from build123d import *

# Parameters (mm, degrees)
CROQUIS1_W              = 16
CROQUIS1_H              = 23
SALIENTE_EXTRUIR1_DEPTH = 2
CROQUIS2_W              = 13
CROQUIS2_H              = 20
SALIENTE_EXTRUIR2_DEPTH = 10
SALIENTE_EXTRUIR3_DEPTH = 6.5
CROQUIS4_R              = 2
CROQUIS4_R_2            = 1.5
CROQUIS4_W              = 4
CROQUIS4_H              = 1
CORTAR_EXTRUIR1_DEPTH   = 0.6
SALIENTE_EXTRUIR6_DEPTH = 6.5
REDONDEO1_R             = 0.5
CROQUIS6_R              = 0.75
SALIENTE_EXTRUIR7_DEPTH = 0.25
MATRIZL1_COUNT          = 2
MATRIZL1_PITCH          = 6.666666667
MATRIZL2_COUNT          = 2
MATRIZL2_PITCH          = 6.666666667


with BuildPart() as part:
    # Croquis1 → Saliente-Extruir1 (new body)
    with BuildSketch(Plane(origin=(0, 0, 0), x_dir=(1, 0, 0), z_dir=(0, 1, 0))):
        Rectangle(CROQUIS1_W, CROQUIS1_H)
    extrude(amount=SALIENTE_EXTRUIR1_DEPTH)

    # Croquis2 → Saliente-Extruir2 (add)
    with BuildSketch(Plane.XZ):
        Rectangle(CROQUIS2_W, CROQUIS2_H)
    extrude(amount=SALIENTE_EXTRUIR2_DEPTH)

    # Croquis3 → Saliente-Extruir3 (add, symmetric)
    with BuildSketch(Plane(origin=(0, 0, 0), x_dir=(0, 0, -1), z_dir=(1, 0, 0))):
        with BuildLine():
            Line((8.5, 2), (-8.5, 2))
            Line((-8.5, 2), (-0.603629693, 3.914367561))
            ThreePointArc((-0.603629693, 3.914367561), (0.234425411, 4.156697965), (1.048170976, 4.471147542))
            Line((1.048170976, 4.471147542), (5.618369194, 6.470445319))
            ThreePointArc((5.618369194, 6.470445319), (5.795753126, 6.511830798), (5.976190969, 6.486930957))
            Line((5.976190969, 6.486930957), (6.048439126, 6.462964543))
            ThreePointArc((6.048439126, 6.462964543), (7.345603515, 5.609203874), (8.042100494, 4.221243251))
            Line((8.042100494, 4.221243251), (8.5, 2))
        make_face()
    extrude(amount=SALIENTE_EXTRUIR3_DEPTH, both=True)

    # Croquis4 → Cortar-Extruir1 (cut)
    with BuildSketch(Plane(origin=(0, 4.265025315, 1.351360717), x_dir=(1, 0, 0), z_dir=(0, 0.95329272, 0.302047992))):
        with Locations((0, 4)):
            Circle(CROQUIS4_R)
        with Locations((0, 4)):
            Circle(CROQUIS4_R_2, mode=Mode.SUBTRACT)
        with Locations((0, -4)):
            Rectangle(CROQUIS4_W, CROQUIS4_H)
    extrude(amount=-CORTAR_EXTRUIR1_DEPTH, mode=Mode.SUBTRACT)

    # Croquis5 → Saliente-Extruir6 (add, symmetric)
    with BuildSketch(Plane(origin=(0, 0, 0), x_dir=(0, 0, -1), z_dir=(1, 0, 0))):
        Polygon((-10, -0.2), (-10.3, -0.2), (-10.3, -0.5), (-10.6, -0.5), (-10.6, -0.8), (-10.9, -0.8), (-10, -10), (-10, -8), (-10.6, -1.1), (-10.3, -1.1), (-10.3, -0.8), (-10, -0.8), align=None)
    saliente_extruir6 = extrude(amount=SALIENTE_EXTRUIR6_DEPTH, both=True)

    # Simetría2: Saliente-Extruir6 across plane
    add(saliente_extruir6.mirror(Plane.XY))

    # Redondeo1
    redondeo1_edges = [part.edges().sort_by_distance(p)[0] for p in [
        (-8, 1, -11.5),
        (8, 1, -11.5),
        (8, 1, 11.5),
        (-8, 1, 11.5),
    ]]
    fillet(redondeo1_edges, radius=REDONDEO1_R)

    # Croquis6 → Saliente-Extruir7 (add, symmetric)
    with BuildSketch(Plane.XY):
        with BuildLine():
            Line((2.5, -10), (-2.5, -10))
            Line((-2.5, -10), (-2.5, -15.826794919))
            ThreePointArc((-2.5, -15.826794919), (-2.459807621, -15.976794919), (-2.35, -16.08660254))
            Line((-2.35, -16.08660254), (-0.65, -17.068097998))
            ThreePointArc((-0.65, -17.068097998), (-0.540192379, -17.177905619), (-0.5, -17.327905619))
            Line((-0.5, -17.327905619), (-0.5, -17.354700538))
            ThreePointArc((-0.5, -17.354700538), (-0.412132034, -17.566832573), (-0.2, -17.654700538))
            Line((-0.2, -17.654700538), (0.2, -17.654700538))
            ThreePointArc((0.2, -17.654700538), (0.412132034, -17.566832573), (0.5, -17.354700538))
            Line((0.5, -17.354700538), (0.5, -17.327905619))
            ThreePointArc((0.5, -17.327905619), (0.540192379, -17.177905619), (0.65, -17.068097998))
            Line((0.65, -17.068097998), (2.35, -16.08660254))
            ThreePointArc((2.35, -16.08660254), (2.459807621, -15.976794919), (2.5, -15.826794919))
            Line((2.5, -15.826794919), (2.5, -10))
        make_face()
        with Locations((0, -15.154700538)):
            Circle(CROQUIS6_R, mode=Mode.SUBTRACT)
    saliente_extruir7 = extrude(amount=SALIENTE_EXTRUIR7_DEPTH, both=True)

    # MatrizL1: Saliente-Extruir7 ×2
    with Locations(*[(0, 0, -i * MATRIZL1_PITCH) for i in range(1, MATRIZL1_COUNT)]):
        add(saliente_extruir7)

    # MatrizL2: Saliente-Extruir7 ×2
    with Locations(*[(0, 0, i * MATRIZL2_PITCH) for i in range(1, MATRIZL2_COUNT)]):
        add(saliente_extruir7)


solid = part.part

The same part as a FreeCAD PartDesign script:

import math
import FreeCAD as App
import Part
import Sketcher
Q = App.Units.Quantity


def edges_at(feature, points):
    """Names of the edges that pass closest to the given points."""
    edges = feature.Shape.Edges
    near = lambda p: min(range(len(edges)), key=lambda i: edges[i].distToShape(Part.Vertex(*p))[0])
    return sorted({f"Edge{near(p) + 1}" for p in points})

doc = App.newDocument("Part")
body = doc.addObject("PartDesign::Body", "Body")

# Sketch on XZ plane
sketch1 = doc.addObject("Sketcher::SketchObject", "Sketch")
body.addObject(sketch1)
sketch1.AttachmentSupport = (doc.XZ_Plane, [""])
sketch1.MapMode = "FlatFace"
sketch1.addGeometry([
    Part.LineSegment(App.Vector(-8, -11.5, 0), App.Vector(-8, 11.5, 0)),
    Part.LineSegment(App.Vector(-8, 11.5, 0), App.Vector(8, 11.5, 0)),
    Part.LineSegment(App.Vector(8, 11.5, 0), App.Vector(8, -11.5, 0)),
    Part.LineSegment(App.Vector(8, -11.5, 0), App.Vector(-8, -11.5, 0)),
], False)
sketch1.addConstraint([
    Sketcher.Constraint("Coincident", 0, 2, 1, 1),
    Sketcher.Constraint("Coincident", 1, 2, 2, 1),
    Sketcher.Constraint("Coincident", 2, 2, 3, 1),
    Sketcher.Constraint("Coincident", 3, 2, 0, 1),
    Sketcher.Constraint("Vertical", 0),
    Sketcher.Constraint("Horizontal", 1),
    Sketcher.Constraint("Vertical", 2),
    Sketcher.Constraint("Horizontal", 3),
    Sketcher.Constraint("Symmetric", 0, 2, 2, 2, -1, 1),
    Sketcher.Constraint("DistanceX", 1, 1, 1, 2, 16.0),
    Sketcher.Constraint("DistanceY", 0, 1, 0, 2, 23.0),
])
pad1 = doc.addObject("PartDesign::Pad", "Pad")
body.addObject(pad1)
pad1.Profile = sketch1
pad1.Length = 2
pad1.Reversed = True

# Sketch on XZ plane
sketch2 = doc.addObject("Sketcher::SketchObject", "Sketch001")
body.addObject(sketch2)
sketch2.AttachmentSupport = (doc.XZ_Plane, [""])
sketch2.MapMode = "FlatFace"
sketch2.addGeometry([
    Part.LineSegment(App.Vector(-6.5, 10, 0), App.Vector(-6.5, -10, 0)),
    Part.LineSegment(App.Vector(-6.5, -10, 0), App.Vector(6.5, -10, 0)),
    Part.LineSegment(App.Vector(6.5, -10, 0), App.Vector(6.5, 10, 0)),
    Part.LineSegment(App.Vector(6.5, 10, 0), App.Vector(-6.5, 10, 0)),
], False)
sketch2.addConstraint([
    Sketcher.Constraint("Coincident", 0, 2, 1, 1),
    Sketcher.Constraint("Coincident", 1, 2, 2, 1),
    Sketcher.Constraint("Coincident", 2, 2, 3, 1),
    Sketcher.Constraint("Coincident", 3, 2, 0, 1),
    Sketcher.Constraint("Vertical", 0),
    Sketcher.Constraint("Horizontal", 1),
    Sketcher.Constraint("Vertical", 2),
    Sketcher.Constraint("Horizontal", 3),
    Sketcher.Constraint("Symmetric", 0, 2, 2, 2, -1, 1),
    Sketcher.Constraint("DistanceX", 1, 1, 1, 2, 13.0),
    Sketcher.Constraint("DistanceY", 0, 2, 0, 1, 20.0),
])
pad2 = doc.addObject("PartDesign::Pad", "Pad001")
body.addObject(pad2)
pad2.Profile = sketch2
pad2.Length = 10

# Sketch on YZ plane
sketch3 = doc.addObject("Sketcher::SketchObject", "Sketch002")
body.addObject(sketch3)
sketch3.AttachmentSupport = (doc.YZ_Plane, [""])
sketch3.MapMode = "FlatFace"
sketch3.addGeometry([
    Part.LineSegment(App.Vector(2, 8.5, 0), App.Vector(2, -8.5, 0)),  # 0
    Part.LineSegment(App.Vector(2, -8.5, 0), App.Vector(4.221243, -8.0421, 0)),  # 1
    Part.ArcOfCircle(Part.Circle(App.Vector(3.615543, -5.103882, 0), App.Vector(0, 0, 1), 3), math.radians(-78.351898), math.radians(-18.351898)),  # 2
    Part.LineSegment(App.Vector(6.462965, -6.048439, 0), App.Vector(6.486931, -5.976191, 0)),  # 3
    Part.ArcOfCircle(Part.Circle(App.Vector(6.012361, -5.818765, 0), App.Vector(0, 0, 1), 0.5), math.radians(-18.351897), math.radians(23.627652)),  # 4
    Part.LineSegment(App.Vector(6.470445, -5.618369, 0), App.Vector(4.471148, -1.048171, 0)),  # 5
    Part.ArcOfCircle(Part.Circle(App.Vector(13.632842, 2.959742, 0), App.Vector(0, 0, 1), 10), math.radians(-166.372347), math.radians(-156.372348)),  # 6
    Part.LineSegment(App.Vector(3.914368, 0.60363, 0), App.Vector(2, 8.5, 0)),  # 7
], False)
sketch3.addConstraint([
    Sketcher.Constraint("Coincident", 0, 2, 1, 1),
    Sketcher.Constraint("Coincident", 1, 2, 2, 1),
    Sketcher.Constraint("Coincident", 2, 2, 3, 1),
    Sketcher.Constraint("Coincident", 3, 2, 4, 1),
    Sketcher.Constraint("Coincident", 4, 2, 5, 1),
    Sketcher.Constraint("Coincident", 5, 2, 6, 2),
    Sketcher.Constraint("Coincident", 6, 1, 7, 1),
    Sketcher.Constraint("Coincident", 7, 2, 0, 1),
    Sketcher.Constraint("Vertical", 0),
    Sketcher.Constraint("Radius", 2, 3.0),
    Sketcher.Constraint("Radius", 6, 10.0),
    Sketcher.Constraint("Radius", 4, 0.5),
    Sketcher.Constraint("DistanceY", 0, 2, 0, 1, 17.0),
    Sketcher.Constraint("DistanceX", -1, 1, 0, 2, 2.0),
    Sketcher.Constraint("DistanceY", 0, 2, -1, 1, 8.5),
    Sketcher.Constraint("DistanceY", 4, 2, 6, 1, 6.221999),
    Sketcher.Constraint("DistanceY", 1, 2, -1, 1, 8.0421),
    Sketcher.Constraint("DistanceX", 2, 3, 6, 3, 10.017299),
    Sketcher.Constraint("DistanceX", 2, 3, 1, 2, 0.605701),
    Sketcher.Constraint("DistanceY", 4, 2, 5, 2, 4.570198),
    Sketcher.Constraint("Distance", 1, 2.267949),
    Sketcher.Constraint("Distance", 3, 0.07612),
    Sketcher.Constraint("DistanceX", -1, 1, 4, 3, 6.012361),
    Sketcher.Constraint("DistanceY", -1, 1, 6, 3, 2.959742),
    Sketcher.Constraint("DistanceY", 2, 2, -1, 1, 6.048439),
    Sketcher.Constraint("DistanceX", -1, 1, 3, 2, 6.486931),
    Sketcher.Constraint("DistanceY", 4, 2, -1, 1, 5.618369),
])
pad3 = doc.addObject("PartDesign::Pad", "Pad002")
body.addObject(pad3)
pad3.Profile = sketch3
pad3.Length = 13
pad3.Midplane = True

# Sketch on an angled plane
sketch4 = doc.addObject("Sketcher::SketchObject", "Sketch003")
body.addObject(sketch4)
sketch4.Placement = App.Placement(App.Vector(0, 4.265025, 1.351361), App.Rotation(App.Vector(1, 0, 0), App.Vector(0, 0.302047992, -0.95329272), App.Vector(0, 0.95329272, 0.302047992), "ZXY"))
sketch4.addGeometry([
    Part.Circle(App.Vector(0, 4, 0), App.Vector(0, 0, 1), 2),  # 0
    Part.Circle(App.Vector(0, 4, 0), App.Vector(0, 0, 1), 1.5),  # 1
    Part.LineSegment(App.Vector(-2, -3.5, 0), App.Vector(-2, -4.5, 0)),  # 2
    Part.LineSegment(App.Vector(-2, -4.5, 0), App.Vector(2, -4.5, 0)),  # 3
    Part.LineSegment(App.Vector(2, -4.5, 0), App.Vector(2, -3.5, 0)),  # 4
    Part.LineSegment(App.Vector(2, -3.5, 0), App.Vector(-2, -3.5, 0)),  # 5
], False)
sketch4.addConstraint([
    Sketcher.Constraint("Coincident", 2, 2, 3, 1),
    Sketcher.Constraint("Coincident", 3, 2, 4, 1),
    Sketcher.Constraint("Coincident", 4, 2, 5, 1),
    Sketcher.Constraint("Coincident", 5, 2, 2, 1),
    Sketcher.Constraint("Vertical", 2),
    Sketcher.Constraint("Horizontal", 3),
    Sketcher.Constraint("Vertical", 4),
    Sketcher.Constraint("Horizontal", 5),
    Sketcher.Constraint("Coincident", 1, 3, 0, 3),
    Sketcher.Constraint("PointOnObject", 0, 3, -2),
    Sketcher.Constraint("Diameter", 0, 4.0),
    Sketcher.Constraint("Diameter", 1, 3.0),
    Sketcher.Constraint("DistanceX", 3, 1, 3, 2, 4.0),
    Sketcher.Constraint("DistanceY", 2, 2, 2, 1, 1.0),
    Sketcher.Constraint("DistanceY", -1, 1, 0, 3, 4.0),
    Sketcher.Constraint("DistanceX", 2, 2, -1, 1, 2.0),
    Sketcher.Constraint("DistanceY", 2, 2, -1, 1, 4.5),
])
pocket1 = doc.addObject("PartDesign::Pocket", "Pocket")
body.addObject(pocket1)
pocket1.Profile = sketch4
pocket1.Length = 0.6

# Sketch on YZ plane
sketch5 = doc.addObject("Sketcher::SketchObject", "Sketch004")
body.addObject(sketch5)
sketch5.AttachmentSupport = (doc.YZ_Plane, [""])
sketch5.MapMode = "FlatFace"
sketch5.addGeometry([
    Part.LineSegment(App.Vector(-0.2, 10, 0), App.Vector(-0.2, 10.3, 0)),  # 0
    Part.LineSegment(App.Vector(-0.2, 10.3, 0), App.Vector(-0.5, 10.3, 0)),  # 1
    Part.LineSegment(App.Vector(-0.5, 10.3, 0), App.Vector(-0.5, 10.6, 0)),  # 2
    Part.LineSegment(App.Vector(-0.5, 10.6, 0), App.Vector(-0.8, 10.6, 0)),  # 3
    Part.LineSegment(App.Vector(-0.8, 10.6, 0), App.Vector(-0.8, 10.9, 0)),  # 4
    Part.LineSegment(App.Vector(-0.8, 10.9, 0), App.Vector(-10, 10, 0)),  # 5
    Part.LineSegment(App.Vector(-10, 10, 0), App.Vector(-8, 10, 0)),  # 6
    Part.LineSegment(App.Vector(-8, 10, 0), App.Vector(-1.1, 10.6, 0)),  # 7
    Part.LineSegment(App.Vector(-1.1, 10.6, 0), App.Vector(-1.1, 10.3, 0)),  # 8
    Part.LineSegment(App.Vector(-1.1, 10.3, 0), App.Vector(-0.8, 10.3, 0)),  # 9
    Part.LineSegment(App.Vector(-0.8, 10.3, 0), App.Vector(-0.8, 10, 0)),  # 10
    Part.LineSegment(App.Vector(-0.8, 10, 0), App.Vector(-0.2, 10, 0)),  # 11
], False)
sketch5.addConstraint([
    Sketcher.Constraint("Coincident", 0, 2, 1, 1),
    Sketcher.Constraint("Coincident", 1, 2, 2, 1),
    Sketcher.Constraint("Coincident", 2, 2, 3, 1),
    Sketcher.Constraint("Coincident", 3, 2, 4, 1),
    Sketcher.Constraint("Coincident", 4, 2, 5, 1),
    Sketcher.Constraint("Coincident", 5, 2, 6, 1),
    Sketcher.Constraint("Coincident", 6, 2, 7, 1),
    Sketcher.Constraint("Coincident", 7, 2, 8, 1),
    Sketcher.Constraint("Coincident", 8, 2, 9, 1),
    Sketcher.Constraint("Coincident", 9, 2, 10, 1),
    Sketcher.Constraint("Coincident", 10, 2, 11, 1),
    Sketcher.Constraint("Coincident", 11, 2, 0, 1),
    Sketcher.Constraint("Vertical", 0),
    Sketcher.Constraint("Horizontal", 1),
    Sketcher.Constraint("Vertical", 2),
    Sketcher.Constraint("Horizontal", 3),
    Sketcher.Constraint("Vertical", 4),
    Sketcher.Constraint("Horizontal", 6),
    Sketcher.Constraint("Vertical", 8),
    Sketcher.Constraint("Horizontal", 9),
    Sketcher.Constraint("Vertical", 10),
    Sketcher.Constraint("Horizontal", 11),
    Sketcher.Constraint("Horizontal", 3, 2, 7, 2),
    Sketcher.Constraint("Horizontal", 1, 2, 8, 2),
    Sketcher.Constraint("Horizontal", 6, 2, 10, 2),
    Sketcher.Constraint("Vertical", 4, 2, 9, 2),
    Sketcher.Constraint("Equal", 1, 3),
    Sketcher.Constraint("Equal", 3, 9),
    Sketcher.Constraint("Equal", 9, 0),
    Sketcher.Constraint("Equal", 0, 2),
    Sketcher.Constraint("Equal", 2, 4),
    Sketcher.Constraint("DistanceX", 6, 1, 6, 2, 2.0),
    Sketcher.Constraint("DistanceX", 1, 2, 1, 1, 0.3),
    Sketcher.Constraint("DistanceX", 5, 2, -1, 1, 10.0),
    Sketcher.Constraint("DistanceY", -1, 1, 5, 2, 10.0),
    Sketcher.Constraint("DistanceX", 0, 2, -1, 1, 0.2),
])
pad4 = doc.addObject("PartDesign::Pad", "Pad003")
body.addObject(pad4)
pad4.Profile = sketch5
pad4.Length = 13
pad4.Midplane = True
doc.recompute()

mirrored = doc.addObject("PartDesign::Mirrored", "Mirrored")
body.addObject(mirrored)
mirrored.Originals = [pad4]
mirrored.MirrorPlane = (doc.XY_Plane, [""])
body.Tip = mirrored
doc.recompute()

fillet = doc.addObject("PartDesign::Fillet", "Fillet")
body.addObject(fillet)
fillet.Base = (mirrored, edges_at(mirrored, [
    (-8, 1, -11.5),
    (8, 1, -11.5),
    (8, 1, 11.5),
    (-8, 1, 11.5),
]))
fillet.Radius = 0.5

# Sketch on XY plane
sketch6 = doc.addObject("Sketcher::SketchObject", "Sketch005")
body.addObject(sketch6)
sketch6.AttachmentSupport = (doc.XY_Plane, [""])
sketch6.MapMode = "FlatFace"
sketch6.addGeometry([
    Part.LineSegment(App.Vector(2.5, -10, 0), App.Vector(-2.5, -10, 0)),  # 0
    Part.LineSegment(App.Vector(-2.5, -10, 0), App.Vector(-2.5, -15.826795, 0)),  # 1
    Part.ArcOfCircle(Part.Circle(App.Vector(-2.2, -15.826795, 0), App.Vector(0, 0, 1), 0.3), math.radians(180), math.radians(240)),  # 2
    Part.LineSegment(App.Vector(-2.35, -16.086603, 0), App.Vector(-0.65, -17.068098, 0)),  # 3
    Part.ArcOfCircle(Part.Circle(App.Vector(-0.8, -17.327906, 0), App.Vector(0, 0, 1), 0.3), math.radians(0), math.radians(60)),  # 4
    Part.LineSegment(App.Vector(-0.5, -17.327906, 0), App.Vector(-0.5, -17.354701, 0)),  # 5
    Part.ArcOfCircle(Part.Circle(App.Vector(-0.2, -17.354701, 0), App.Vector(0, 0, 1), 0.3), math.radians(180), math.radians(270)),  # 6
    Part.LineSegment(App.Vector(-0.2, -17.654701, 0), App.Vector(0.2, -17.654701, 0)),  # 7
    Part.ArcOfCircle(Part.Circle(App.Vector(0.2, -17.354701, 0), App.Vector(0, 0, 1), 0.3), math.radians(-90), math.radians(0)),  # 8
    Part.LineSegment(App.Vector(0.5, -17.354701, 0), App.Vector(0.5, -17.327906, 0)),  # 9
    Part.ArcOfCircle(Part.Circle(App.Vector(0.8, -17.327906, 0), App.Vector(0, 0, 1), 0.3), math.radians(120), math.radians(180)),  # 10
    Part.LineSegment(App.Vector(0.65, -17.068098, 0), App.Vector(2.35, -16.086603, 0)),  # 11
    Part.ArcOfCircle(Part.Circle(App.Vector(2.2, -15.826795, 0), App.Vector(0, 0, 1), 0.3), math.radians(-60), math.radians(0)),  # 12
    Part.LineSegment(App.Vector(2.5, -15.826795, 0), App.Vector(2.5, -10, 0)),  # 13
    Part.Circle(App.Vector(0, -15.154701, 0), App.Vector(0, 0, 1), 0.75),  # 14
], False)
sketch6.addConstraint([
    Sketcher.Constraint("Coincident", 0, 2, 1, 1),
    Sketcher.Constraint("Tangent", 1, 2, 2, 1),
    Sketcher.Constraint("Tangent", 2, 2, 3, 1),
    Sketcher.Constraint("Tangent", 3, 2, 4, 2),
    Sketcher.Constraint("Tangent", 4, 1, 5, 1),
    Sketcher.Constraint("Tangent", 5, 2, 6, 1),
    Sketcher.Constraint("Tangent", 6, 2, 7, 1),
    Sketcher.Constraint("Tangent", 7, 2, 8, 1),
    Sketcher.Constraint("Tangent", 8, 2, 9, 1),
    Sketcher.Constraint("Tangent", 9, 2, 10, 2),
    Sketcher.Constraint("Tangent", 10, 1, 11, 1),
    Sketcher.Constraint("Tangent", 11, 2, 12, 1),
    Sketcher.Constraint("Tangent", 12, 2, 13, 1),
    Sketcher.Constraint("Coincident", 13, 2, 0, 1),
    Sketcher.Constraint("Horizontal", 0),
    Sketcher.Constraint("Vertical", 1),
    Sketcher.Constraint("Vertical", 5),
    Sketcher.Constraint("Horizontal", 7),
    Sketcher.Constraint("Vertical", 9),
    Sketcher.Constraint("Vertical", 13),
    Sketcher.Constraint("Equal", 2, 4),
    Sketcher.Constraint("Equal", 4, 6),
    Sketcher.Constraint("Equal", 6, 8),
    Sketcher.Constraint("Equal", 8, 10),
    Sketcher.Constraint("Equal", 10, 12),
    Sketcher.Constraint("Symmetric", 4, 3, 10, 3, -2),
    Sketcher.Constraint("Symmetric", 2, 3, 12, 3, -2),
    Sketcher.Constraint("PointOnObject", 14, 3, -2),
    Sketcher.Constraint("Diameter", 14, 1.5),
    Sketcher.Constraint("Radius", 2, 0.3),
    Sketcher.Constraint("DistanceX", 0, 2, 0, 1, 5.0),
    Sketcher.Constraint("Angle", 3, Q("-30 deg")),
    Sketcher.Constraint("DistanceX", 7, 1, 7, 2, 0.4),
    Sketcher.Constraint("DistanceY", 0, 2, -1, 1, 10.0),
    Sketcher.Constraint("DistanceY", 6, 3, 14, 3, 2.2),
    Sketcher.Constraint("DistanceY", 6, 3, -1, 1, 17.354701),
    Sketcher.Constraint("DistanceY", 1, 2, 1, 1, 5.826795),
])
pad5 = doc.addObject("PartDesign::Pad", "Pad004")
body.addObject(pad5)
pad5.Profile = sketch6
pad5.Length = 0.5
pad5.Midplane = True
doc.recompute()

linearpattern = doc.addObject("PartDesign::LinearPattern", "LinearPattern")
body.addObject(linearpattern)
linearpattern.Originals = [pad5]
linearpattern.Direction = (doc.Z_Axis, [""])
linearpattern.Mode = "offset"
linearpattern.Offset = 6.666667
linearpattern.Occurrences = 2
linearpattern.Reversed = True
body.Tip = linearpattern
doc.recompute()

linearpattern2 = doc.addObject("PartDesign::LinearPattern", "LinearPattern001")
body.addObject(linearpattern2)
linearpattern2.Originals = [pad5]
linearpattern2.Direction = (doc.Z_Axis, [""])
linearpattern2.Mode = "offset"
linearpattern2.Offset = 6.666667
linearpattern2.Occurrences = 2
body.Tip = linearpattern2

doc.recompute()
